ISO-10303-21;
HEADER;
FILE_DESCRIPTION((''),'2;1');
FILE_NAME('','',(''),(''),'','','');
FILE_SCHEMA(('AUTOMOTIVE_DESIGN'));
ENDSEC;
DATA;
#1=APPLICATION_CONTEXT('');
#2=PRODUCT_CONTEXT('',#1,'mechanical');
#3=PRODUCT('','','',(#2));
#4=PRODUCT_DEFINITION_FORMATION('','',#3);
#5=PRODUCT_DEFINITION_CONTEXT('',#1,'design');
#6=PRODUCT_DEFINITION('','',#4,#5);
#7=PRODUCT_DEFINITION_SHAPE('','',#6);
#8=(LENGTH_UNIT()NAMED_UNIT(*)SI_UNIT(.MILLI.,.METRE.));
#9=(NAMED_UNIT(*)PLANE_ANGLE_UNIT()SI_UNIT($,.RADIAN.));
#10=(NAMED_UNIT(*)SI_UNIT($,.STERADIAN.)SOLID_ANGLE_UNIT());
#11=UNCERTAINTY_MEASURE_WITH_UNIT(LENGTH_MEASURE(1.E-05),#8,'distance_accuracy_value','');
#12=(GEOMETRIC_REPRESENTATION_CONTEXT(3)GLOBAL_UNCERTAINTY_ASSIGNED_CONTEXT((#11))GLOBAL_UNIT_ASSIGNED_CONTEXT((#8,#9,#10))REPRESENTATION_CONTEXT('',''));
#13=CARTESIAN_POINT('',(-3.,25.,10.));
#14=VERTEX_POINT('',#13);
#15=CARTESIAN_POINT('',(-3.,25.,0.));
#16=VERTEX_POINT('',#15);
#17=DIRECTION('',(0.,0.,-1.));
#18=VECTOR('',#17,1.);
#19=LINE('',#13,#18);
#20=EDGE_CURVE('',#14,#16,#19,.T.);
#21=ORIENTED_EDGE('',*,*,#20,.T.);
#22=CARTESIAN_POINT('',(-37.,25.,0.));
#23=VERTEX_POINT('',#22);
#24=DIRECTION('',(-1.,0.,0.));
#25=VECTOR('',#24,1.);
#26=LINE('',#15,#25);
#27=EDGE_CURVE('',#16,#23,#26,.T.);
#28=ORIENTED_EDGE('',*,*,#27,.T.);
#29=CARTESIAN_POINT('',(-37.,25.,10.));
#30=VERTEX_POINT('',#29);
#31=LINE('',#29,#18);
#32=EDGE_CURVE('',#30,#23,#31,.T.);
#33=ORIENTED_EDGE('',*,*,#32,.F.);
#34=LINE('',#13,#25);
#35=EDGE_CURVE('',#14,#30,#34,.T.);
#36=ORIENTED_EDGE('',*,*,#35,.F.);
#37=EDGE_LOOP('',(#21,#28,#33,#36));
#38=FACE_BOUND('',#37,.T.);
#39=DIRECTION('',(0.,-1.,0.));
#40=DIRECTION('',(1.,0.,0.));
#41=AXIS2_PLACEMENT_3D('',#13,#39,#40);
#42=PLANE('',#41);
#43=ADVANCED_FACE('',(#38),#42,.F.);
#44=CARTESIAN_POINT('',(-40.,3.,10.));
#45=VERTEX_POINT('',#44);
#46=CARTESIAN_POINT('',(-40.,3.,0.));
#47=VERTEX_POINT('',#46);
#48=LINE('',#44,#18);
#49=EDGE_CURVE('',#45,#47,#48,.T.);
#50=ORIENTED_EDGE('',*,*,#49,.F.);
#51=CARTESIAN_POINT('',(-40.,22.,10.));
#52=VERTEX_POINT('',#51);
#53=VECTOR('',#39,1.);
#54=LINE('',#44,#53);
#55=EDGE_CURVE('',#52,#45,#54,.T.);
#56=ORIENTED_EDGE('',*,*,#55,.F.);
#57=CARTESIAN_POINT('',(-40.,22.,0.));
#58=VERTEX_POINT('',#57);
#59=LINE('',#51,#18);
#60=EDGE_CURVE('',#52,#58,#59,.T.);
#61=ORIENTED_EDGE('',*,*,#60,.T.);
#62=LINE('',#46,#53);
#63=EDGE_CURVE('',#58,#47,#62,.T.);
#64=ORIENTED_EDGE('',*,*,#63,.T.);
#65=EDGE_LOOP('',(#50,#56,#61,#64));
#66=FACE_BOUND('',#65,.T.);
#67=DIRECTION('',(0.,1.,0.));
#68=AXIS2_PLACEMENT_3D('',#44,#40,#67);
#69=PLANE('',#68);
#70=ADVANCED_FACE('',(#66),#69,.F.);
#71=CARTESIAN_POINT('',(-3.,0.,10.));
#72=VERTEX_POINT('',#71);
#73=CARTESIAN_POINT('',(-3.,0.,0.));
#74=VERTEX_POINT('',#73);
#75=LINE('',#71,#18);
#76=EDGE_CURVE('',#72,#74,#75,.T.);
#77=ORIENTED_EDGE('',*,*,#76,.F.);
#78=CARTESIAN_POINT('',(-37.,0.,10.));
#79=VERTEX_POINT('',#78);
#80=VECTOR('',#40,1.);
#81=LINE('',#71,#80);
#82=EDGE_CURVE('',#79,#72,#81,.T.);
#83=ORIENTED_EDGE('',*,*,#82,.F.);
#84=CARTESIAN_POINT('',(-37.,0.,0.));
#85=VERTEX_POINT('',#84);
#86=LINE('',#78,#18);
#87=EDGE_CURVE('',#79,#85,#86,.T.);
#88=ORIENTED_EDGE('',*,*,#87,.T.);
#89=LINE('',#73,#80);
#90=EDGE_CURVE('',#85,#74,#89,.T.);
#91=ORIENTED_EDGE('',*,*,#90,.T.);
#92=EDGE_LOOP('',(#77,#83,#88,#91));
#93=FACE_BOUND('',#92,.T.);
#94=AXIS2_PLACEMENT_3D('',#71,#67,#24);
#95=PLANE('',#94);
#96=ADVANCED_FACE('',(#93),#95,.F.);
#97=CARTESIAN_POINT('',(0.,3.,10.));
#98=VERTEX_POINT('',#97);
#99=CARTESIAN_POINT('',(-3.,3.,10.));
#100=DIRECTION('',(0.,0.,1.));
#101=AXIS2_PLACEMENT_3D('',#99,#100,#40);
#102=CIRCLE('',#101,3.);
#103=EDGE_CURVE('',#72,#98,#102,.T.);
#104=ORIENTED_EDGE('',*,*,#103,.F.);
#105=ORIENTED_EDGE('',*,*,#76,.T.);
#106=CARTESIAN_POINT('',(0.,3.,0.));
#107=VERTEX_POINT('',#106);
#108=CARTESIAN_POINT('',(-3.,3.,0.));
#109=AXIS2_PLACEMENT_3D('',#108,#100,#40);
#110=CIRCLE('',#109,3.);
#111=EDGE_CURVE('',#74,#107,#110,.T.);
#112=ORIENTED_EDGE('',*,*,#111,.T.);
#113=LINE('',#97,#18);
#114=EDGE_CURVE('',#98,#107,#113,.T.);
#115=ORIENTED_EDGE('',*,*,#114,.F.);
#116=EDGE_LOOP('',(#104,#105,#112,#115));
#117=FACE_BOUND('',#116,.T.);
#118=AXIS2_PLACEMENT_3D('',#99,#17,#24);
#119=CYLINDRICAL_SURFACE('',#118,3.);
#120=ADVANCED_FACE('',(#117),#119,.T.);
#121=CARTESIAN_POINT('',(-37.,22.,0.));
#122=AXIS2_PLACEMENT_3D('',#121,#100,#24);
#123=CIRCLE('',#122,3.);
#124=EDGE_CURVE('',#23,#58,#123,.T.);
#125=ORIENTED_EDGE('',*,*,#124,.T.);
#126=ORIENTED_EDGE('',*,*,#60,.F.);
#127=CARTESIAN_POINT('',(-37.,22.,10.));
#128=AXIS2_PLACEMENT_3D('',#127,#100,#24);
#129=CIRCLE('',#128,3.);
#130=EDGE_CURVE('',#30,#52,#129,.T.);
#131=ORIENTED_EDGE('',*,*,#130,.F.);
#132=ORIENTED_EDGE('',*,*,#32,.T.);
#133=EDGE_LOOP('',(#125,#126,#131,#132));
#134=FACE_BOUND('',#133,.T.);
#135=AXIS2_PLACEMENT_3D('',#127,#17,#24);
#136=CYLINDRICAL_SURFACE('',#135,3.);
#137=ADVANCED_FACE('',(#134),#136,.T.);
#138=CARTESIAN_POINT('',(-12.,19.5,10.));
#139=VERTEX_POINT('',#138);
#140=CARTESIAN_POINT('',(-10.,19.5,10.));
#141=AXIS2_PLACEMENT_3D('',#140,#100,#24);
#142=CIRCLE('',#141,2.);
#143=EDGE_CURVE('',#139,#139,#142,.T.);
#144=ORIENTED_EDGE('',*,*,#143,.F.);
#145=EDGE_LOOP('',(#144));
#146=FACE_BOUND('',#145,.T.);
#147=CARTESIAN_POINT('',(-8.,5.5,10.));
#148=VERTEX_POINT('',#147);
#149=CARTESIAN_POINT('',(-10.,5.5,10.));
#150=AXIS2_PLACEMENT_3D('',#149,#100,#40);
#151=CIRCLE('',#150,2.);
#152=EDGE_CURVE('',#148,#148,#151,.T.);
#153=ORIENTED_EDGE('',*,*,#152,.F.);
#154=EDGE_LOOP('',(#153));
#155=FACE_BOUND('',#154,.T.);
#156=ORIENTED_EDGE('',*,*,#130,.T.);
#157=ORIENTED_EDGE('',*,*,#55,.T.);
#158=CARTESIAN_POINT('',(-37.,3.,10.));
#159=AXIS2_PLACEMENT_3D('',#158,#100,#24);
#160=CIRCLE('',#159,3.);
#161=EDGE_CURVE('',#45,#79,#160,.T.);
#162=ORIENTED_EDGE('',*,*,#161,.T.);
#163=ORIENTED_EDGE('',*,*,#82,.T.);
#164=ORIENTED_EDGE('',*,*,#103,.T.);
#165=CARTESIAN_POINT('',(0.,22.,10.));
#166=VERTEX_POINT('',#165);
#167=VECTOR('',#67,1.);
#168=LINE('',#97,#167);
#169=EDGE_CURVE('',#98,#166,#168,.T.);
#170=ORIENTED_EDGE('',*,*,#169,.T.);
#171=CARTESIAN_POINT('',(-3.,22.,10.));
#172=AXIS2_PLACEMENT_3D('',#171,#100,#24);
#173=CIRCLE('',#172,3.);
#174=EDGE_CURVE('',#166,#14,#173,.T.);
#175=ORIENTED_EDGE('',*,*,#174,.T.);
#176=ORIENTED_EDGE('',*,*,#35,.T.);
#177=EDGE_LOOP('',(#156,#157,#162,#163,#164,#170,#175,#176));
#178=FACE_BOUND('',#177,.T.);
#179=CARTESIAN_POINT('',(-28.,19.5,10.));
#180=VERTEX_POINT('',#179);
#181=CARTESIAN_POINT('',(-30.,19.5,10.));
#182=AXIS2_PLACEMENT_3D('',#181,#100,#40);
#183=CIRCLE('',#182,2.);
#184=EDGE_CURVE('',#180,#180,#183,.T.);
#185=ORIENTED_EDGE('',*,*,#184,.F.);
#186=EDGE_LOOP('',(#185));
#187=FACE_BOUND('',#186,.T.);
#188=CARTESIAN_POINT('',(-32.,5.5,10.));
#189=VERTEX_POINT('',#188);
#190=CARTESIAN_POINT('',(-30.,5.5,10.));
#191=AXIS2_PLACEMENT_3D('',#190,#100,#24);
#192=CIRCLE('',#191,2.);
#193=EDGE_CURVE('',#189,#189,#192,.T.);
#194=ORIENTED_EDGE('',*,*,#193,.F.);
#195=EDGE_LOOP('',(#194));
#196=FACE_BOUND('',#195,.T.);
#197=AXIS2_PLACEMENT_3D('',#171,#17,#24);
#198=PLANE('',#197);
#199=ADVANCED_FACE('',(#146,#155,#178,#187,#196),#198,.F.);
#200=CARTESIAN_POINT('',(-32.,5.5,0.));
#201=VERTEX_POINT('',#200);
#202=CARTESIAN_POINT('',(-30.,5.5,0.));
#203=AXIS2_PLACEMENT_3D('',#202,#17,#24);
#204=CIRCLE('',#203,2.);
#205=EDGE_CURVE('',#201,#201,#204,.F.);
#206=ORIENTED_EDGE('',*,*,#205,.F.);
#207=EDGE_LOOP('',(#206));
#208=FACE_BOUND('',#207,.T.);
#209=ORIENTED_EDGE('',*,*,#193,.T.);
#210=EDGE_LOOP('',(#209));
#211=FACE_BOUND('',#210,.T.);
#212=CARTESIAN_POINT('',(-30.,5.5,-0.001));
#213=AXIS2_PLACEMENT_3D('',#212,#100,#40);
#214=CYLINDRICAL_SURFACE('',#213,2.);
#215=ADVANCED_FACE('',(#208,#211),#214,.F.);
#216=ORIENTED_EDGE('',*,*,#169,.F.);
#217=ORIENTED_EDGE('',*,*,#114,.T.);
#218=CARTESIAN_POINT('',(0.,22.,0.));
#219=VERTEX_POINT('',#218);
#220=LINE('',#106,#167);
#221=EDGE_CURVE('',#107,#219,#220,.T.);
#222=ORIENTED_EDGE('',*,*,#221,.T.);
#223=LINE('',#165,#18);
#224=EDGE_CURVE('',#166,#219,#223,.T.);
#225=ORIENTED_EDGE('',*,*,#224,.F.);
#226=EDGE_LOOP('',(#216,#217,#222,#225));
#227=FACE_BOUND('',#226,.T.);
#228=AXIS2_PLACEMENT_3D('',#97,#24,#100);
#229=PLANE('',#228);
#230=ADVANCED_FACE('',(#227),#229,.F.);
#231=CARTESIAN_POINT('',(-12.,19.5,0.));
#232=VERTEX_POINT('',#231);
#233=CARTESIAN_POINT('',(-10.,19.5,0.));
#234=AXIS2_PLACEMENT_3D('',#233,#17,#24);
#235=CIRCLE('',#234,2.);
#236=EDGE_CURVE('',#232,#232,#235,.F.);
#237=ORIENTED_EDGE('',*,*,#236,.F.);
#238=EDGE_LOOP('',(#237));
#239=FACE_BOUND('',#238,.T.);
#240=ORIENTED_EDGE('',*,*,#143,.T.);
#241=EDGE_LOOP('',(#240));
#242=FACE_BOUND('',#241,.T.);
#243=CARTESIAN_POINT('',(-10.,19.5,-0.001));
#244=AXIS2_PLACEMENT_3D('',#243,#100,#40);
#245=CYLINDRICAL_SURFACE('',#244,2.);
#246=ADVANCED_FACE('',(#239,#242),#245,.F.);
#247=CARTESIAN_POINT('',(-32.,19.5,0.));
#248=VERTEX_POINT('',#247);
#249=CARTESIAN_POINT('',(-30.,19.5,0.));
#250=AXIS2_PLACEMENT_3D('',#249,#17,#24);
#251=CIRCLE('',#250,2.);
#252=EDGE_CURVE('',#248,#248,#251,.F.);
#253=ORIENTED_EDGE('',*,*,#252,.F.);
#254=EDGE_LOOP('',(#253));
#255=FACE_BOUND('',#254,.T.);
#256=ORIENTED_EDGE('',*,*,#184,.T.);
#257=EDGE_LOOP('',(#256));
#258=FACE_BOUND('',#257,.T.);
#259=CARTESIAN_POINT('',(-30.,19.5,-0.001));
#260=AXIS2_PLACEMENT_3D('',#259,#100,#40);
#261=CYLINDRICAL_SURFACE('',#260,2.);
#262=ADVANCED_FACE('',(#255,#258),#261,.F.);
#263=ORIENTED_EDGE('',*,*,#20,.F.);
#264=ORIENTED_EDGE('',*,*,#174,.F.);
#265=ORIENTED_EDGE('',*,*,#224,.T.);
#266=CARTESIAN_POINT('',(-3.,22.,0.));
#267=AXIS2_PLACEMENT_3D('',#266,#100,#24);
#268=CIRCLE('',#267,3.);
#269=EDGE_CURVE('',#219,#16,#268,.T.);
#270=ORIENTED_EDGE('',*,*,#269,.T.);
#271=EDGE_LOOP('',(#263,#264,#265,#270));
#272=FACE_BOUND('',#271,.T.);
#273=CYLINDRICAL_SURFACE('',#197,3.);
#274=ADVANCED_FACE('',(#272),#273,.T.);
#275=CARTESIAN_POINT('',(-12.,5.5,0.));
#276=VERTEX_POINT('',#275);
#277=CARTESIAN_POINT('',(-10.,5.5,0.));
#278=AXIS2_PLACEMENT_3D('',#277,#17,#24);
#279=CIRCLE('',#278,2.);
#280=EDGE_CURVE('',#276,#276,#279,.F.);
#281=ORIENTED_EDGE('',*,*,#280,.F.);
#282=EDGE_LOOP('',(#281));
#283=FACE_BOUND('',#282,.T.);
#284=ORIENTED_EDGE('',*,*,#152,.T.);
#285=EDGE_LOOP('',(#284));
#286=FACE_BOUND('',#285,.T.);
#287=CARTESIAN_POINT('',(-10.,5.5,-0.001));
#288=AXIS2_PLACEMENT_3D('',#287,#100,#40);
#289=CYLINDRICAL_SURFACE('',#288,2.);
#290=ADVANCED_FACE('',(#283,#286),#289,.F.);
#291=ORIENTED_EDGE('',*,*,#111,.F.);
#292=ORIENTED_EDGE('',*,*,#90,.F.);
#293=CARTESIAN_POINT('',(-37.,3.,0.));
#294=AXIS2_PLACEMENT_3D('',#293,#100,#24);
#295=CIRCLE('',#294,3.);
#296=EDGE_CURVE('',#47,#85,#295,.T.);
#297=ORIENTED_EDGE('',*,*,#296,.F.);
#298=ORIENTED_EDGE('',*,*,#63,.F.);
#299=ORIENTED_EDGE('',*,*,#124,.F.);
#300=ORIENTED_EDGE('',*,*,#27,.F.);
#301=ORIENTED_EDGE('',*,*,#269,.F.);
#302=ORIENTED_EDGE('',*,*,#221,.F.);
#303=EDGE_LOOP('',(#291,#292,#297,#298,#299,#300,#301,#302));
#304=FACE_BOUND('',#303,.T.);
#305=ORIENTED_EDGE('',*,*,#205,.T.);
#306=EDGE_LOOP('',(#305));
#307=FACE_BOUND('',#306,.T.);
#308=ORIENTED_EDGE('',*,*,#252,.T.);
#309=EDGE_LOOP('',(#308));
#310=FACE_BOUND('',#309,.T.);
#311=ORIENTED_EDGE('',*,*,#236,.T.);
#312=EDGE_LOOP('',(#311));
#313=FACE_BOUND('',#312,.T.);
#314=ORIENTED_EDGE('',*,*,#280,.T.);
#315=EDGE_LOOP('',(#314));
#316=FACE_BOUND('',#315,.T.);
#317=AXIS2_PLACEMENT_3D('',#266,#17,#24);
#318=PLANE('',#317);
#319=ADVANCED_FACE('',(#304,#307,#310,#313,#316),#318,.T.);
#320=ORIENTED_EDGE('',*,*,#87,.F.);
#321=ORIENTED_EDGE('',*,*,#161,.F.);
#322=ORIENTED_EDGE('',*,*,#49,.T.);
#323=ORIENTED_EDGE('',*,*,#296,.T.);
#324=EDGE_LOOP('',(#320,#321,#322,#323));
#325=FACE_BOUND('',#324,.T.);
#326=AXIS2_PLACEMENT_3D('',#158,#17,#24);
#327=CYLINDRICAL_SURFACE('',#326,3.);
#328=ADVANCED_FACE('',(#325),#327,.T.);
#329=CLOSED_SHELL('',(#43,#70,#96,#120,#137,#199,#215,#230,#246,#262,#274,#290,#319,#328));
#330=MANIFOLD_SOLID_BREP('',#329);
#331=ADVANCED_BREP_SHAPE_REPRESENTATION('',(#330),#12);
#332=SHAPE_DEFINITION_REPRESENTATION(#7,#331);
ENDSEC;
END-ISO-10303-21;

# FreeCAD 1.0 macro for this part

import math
import FreeCAD as App
import Part
import Sketcher

V = App.Vector

doc = App.newDocument("Part")
body = doc.addObject("PartDesign::Body", "Body")

# Sketch on XY plane
sketch1 = doc.addObject("Sketcher::SketchObject", "Sketch")
body.addObject(sketch1)
sketch1.AttachmentSupport = (doc.XY_Plane, [""])
sketch1.MapMode = "FlatFace"
sketch1.addGeometry([
    Part.LineSegment(V(-37, 0, 0), V(-3, 0, 0)),  # 0
    Part.ArcOfCircle(Part.Circle(V(-3, 3, 0), V(0, 0, 1), 3), math.radians(-90), math.radians(0)),  # 1
    Part.LineSegment(V(0, 3, 0), V(0, 22, 0)),  # 2
    Part.ArcOfCircle(Part.Circle(V(-3, 22, 0), V(0, 0, 1), 3), math.radians(0), math.radians(90)),  # 3
    Part.LineSegment(V(-3, 25, 0), V(-37, 25, 0)),  # 4
    Part.ArcOfCircle(Part.Circle(V(-37, 22, 0), V(0, 0, 1), 3), math.radians(90), math.radians(180)),  # 5
    Part.LineSegment(V(-40, 22, 0), V(-40, 3, 0)),  # 6
    Part.ArcOfCircle(Part.Circle(V(-37, 3, 0), V(0, 0, 1), 3), math.radians(180), math.radians(270)),  # 7
], False)
sketch1.addConstraint([
    Sketcher.Constraint("Tangent", 0, 2, 1, 1),
    Sketcher.Constraint("Tangent", 1, 2, 2, 1),
    Sketcher.Constraint("Tangent", 2, 2, 3, 1),
    Sketcher.Constraint("Tangent", 3, 2, 4, 1),
    Sketcher.Constraint("Tangent", 4, 2, 5, 1),
    Sketcher.Constraint("Tangent", 5, 2, 6, 1),
    Sketcher.Constraint("Tangent", 6, 2, 7, 1),
    Sketcher.Constraint("Tangent", 7, 2, 0, 1),
    Sketcher.Constraint("Horizontal", 0),
    Sketcher.Constraint("Vertical", 2),
    Sketcher.Constraint("Horizontal", 4),
    Sketcher.Constraint("Vertical", 6),
    Sketcher.Constraint("Equal", 1, 3),
    Sketcher.Constraint("Equal", 3, 5),
    Sketcher.Constraint("Equal", 5, 7),
    Sketcher.Constraint("PointOnObject", 0, 2, -1),
    Sketcher.Constraint("PointOnObject", 1, 2, -2),
    Sketcher.Constraint("Radius", 1, 3.0),
    Sketcher.Constraint("DistanceX", 0, 1, 0, 2, 34.0),
    Sketcher.Constraint("DistanceY", 2, 1, 2, 2, 19.0),
])
pad1 = doc.addObject("PartDesign::Pad", "Pad")
body.addObject(pad1)
pad1.Profile = sketch1
pad1.Length = 10

# Sketch on XY plane
sketch2 = doc.addObject("Sketcher::SketchObject", "Sketch001")
body.addObject(sketch2)
sketch2.AttachmentSupport = (doc.XY_Plane, [""])
sketch2.MapMode = "FlatFace"
sketch2.AttachmentOffset = App.Placement(V(0, 0, 10), App.Rotation())
sketch2.addGeometry(Part.Circle(V(-30, 19.5, 0), V(0, 0, 1), 2), False)
sketch2.addConstraint([
    Sketcher.Constraint("Diameter", 0, 4.0),
    Sketcher.Constraint("DistanceX", 0, 3, -1, 1, 30.0),
    Sketcher.Constraint("DistanceY", -1, 1, 0, 3, 19.5),
])
pocket1 = doc.addObject("PartDesign::Pocket", "Pocket")
body.addObject(pocket1)
pocket1.Profile = sketch2
pocket1.Type = "UpToFirst"

# Sketch on XY plane
sketch3 = doc.addObject("Sketcher::SketchObject", "Sketch002")
body.addObject(sketch3)
sketch3.AttachmentSupport = (doc.XY_Plane, [""])
sketch3.MapMode = "FlatFace"
sketch3.AttachmentOffset = App.Placement(V(0, 0, 10), App.Rotation())
sketch3.addGeometry(Part.Circle(V(-30, 5.5, 0), V(0, 0, 1), 2), False)
sketch3.addConstraint([
    Sketcher.Constraint("Diameter", 0, 4.0),
    Sketcher.Constraint("DistanceX", 0, 3, -1, 1, 30.0),
    Sketcher.Constraint("DistanceY", -1, 1, 0, 3, 5.5),
])
pocket2 = doc.addObject("PartDesign::Pocket", "Pocket001")
body.addObject(pocket2)
pocket2.Profile = sketch3
pocket2.Type = "UpToFirst"

# Sketch on XY plane
sketch4 = doc.addObject("Sketcher::SketchObject", "Sketch003")
body.addObject(sketch4)
sketch4.AttachmentSupport = (doc.XY_Plane, [""])
sketch4.MapMode = "FlatFace"
sketch4.AttachmentOffset = App.Placement(V(0, 0, 10), App.Rotation())
sketch4.addGeometry(Part.Circle(V(-10, 19.5, 0), V(0, 0, 1), 2), False)
sketch4.addConstraint([
    Sketcher.Constraint("Diameter", 0, 4.0),
    Sketcher.Constraint("DistanceX", 0, 3, -1, 1, 10.0),
    Sketcher.Constraint("DistanceY", -1, 1, 0, 3, 19.5),
])
pocket3 = doc.addObject("PartDesign::Pocket", "Pocket002")
body.addObject(pocket3)
pocket3.Profile = sketch4
pocket3.Type = "UpToFirst"

# Sketch on XY plane
sketch5 = doc.addObject("Sketcher::SketchObject", "Sketch004")
body.addObject(sketch5)
sketch5.AttachmentSupport = (doc.XY_Plane, [""])
sketch5.MapMode = "FlatFace"
sketch5.AttachmentOffset = App.Placement(V(0, 0, 10), App.Rotation())
sketch5.addGeometry(Part.Circle(V(-10, 5.5, 0), V(0, 0, 1), 2), False)
sketch5.addConstraint([
    Sketcher.Constraint("Diameter", 0, 4.0),
    Sketcher.Constraint("DistanceX", 0, 3, -1, 1, 10.0),
    Sketcher.Constraint("DistanceY", -1, 1, 0, 3, 5.5),
])
pocket4 = doc.addObject("PartDesign::Pocket", "Pocket003")
body.addObject(pocket4)
pocket4.Profile = sketch5
pocket4.Type = "UpToFirst"

doc.recompute()
